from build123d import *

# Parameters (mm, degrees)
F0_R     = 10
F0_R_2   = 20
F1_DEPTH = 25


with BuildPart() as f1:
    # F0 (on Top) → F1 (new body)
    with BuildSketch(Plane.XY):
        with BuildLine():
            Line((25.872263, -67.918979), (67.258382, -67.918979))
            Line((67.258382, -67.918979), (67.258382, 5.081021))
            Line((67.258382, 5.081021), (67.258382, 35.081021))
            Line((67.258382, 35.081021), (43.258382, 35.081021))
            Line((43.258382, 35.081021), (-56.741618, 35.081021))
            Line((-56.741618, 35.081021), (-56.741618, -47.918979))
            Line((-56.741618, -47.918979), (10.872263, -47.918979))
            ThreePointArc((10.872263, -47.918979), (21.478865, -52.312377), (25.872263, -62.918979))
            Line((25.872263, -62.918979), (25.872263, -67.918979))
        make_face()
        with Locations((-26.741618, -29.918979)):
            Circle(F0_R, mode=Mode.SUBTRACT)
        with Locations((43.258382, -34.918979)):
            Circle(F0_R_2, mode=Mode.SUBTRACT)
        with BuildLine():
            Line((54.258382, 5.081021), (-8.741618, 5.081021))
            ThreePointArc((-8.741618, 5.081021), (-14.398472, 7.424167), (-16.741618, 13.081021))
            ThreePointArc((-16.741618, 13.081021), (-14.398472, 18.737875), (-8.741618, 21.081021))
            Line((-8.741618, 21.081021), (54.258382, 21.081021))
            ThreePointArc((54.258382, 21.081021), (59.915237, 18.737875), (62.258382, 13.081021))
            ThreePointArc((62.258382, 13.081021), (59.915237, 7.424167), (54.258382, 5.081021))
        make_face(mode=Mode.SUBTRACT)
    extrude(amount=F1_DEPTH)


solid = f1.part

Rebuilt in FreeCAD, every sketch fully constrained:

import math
import FreeCAD as App
import Part
import Sketcher

V = App.Vector

doc = App.newDocument("Part")
body = doc.addObject("PartDesign::Body", "Body")

# Sketch on XY plane
sketch1 = body.newObject("Sketcher::SketchObject", "Sketch")
sketch1.AttachmentSupport = (doc.getObject("XY_Plane"), [""])
sketch1.MapMode = "FlatFace"
sketch1.addGeometry(Part.LineSegment(V(25.9, -67.9, 0), V(67.3, -67.9, 0)), False)
sketch1.addGeometry(Part.LineSegment(V(67.3, -67.9, 0), V(67.3, 35.1, 0)), False)
sketch1.addGeometry(Part.LineSegment(V(67.3, 35.1, 0), V(-56.7, 35.1, 0)), False)
sketch1.addGeometry(Part.LineSegment(V(-56.7, 35.1, 0), V(-56.7, -47.9, 0)), False)
sketch1.addGeometry(Part.LineSegment(V(-56.7, -47.9, 0), V(10.9, -47.9, 0)), False)
sketch1.addGeometry(Part.ArcOfCircle(Part.Circle(V(10.9, -62.9, 0), V(0, 0, 1), 15), math.radians(0), math.radians(90)), False)
sketch1.addGeometry(Part.LineSegment(V(25.9, -62.9, 0), V(25.9, -67.9, 0)), False)
sketch1.addGeometry(Part.Circle(V(-26.7, -29.9, 0), V(0, 0, 1), 10), False)
sketch1.addGeometry(Part.Circle(V(43.3, -34.9, 0), V(0, 0, 1), 20), False)
sketch1.addGeometry(Part.ArcOfCircle(Part.Circle(V(54.3, 13.1, 0), V(0, 0, 1), 8), math.radians(-90), math.radians(0)), False)
sketch1.addGeometry(Part.LineSegment(V(54.3, 5.1, 0), V(-8.7, 5.1, 0)), False)
sketch1.addGeometry(Part.ArcOfCircle(Part.Circle(V(-8.7, 13.1, 0), V(0, 0, 1), 8), math.radians(-180), math.radians(-90)), False)
sketch1.addGeometry(Part.ArcOfCircle(Part.Circle(V(-8.7, 13.1, 0), V(0, 0, 1), 8), math.radians(90), math.radians(180)), False)
sketch1.addGeometry(Part.LineSegment(V(-8.7, 21.1, 0), V(54.3, 21.1, 0)), False)
sketch1.addGeometry(Part.ArcOfCircle(Part.Circle(V(54.3, 13.1, 0), V(0, 0, 1), 8), math.radians(0), math.radians(90)), False)
sketch1.addConstraint(Sketcher.Constraint("Coincident", 0, 2, 1, 1))
sketch1.addConstraint(Sketcher.Constraint("Coincident", 1, 2, 2, 1))
sketch1.addConstraint(Sketcher.Constraint("Coincident", 2, 2, 3, 1))
sketch1.addConstraint(Sketcher.Constraint("Coincident", 3, 2, 4, 1))
sketch1.addConstraint(Sketcher.Constraint("Tangent", 4, 2, 5, 2))
sketch1.addConstraint(Sketcher.Constraint("Tangent", 5, 1, 6, 1))
sketch1.addConstraint(Sketcher.Constraint("Coincident", 6, 2, 0, 1))
sketch1.addConstraint(Sketcher.Constraint("Tangent", 9, 1, 10, 1))
sketch1.addConstraint(Sketcher.Constraint("Tangent", 10, 2, 11, 2))
sketch1.addConstraint(Sketcher.Constraint("Tangent", 11, 1, 12, 2))
sketch1.addConstraint(Sketcher.Constraint("Tangent", 12, 1, 13, 1))
sketch1.addConstraint(Sketcher.Constraint("Tangent", 13, 2, 14, 2))
sketch1.addConstraint(Sketcher.Constraint("Tangent", 14, 1, 9, 2))
sketch1.addConstraint(Sketcher.Constraint("Horizontal", 0))
sketch1.addConstraint(Sketcher.Constraint("Vertical", 1))
sketch1.addConstraint(Sketcher.Constraint("Horizontal", 2))
sketch1.addConstraint(Sketcher.Constraint("Vertical", 3))
sketch1.addConstraint(Sketcher.Constraint("Horizontal", 4))
sketch1.addConstraint(Sketcher.Constraint("Vertical", 6))
sketch1.addConstraint(Sketcher.Constraint("Horizontal", 10))
sketch1.addConstraint(Sketcher.Constraint("Horizontal", 13))
sketch1.addConstraint(Sketcher.Constraint("Equal", 9, 11))
sketch1.addConstraint(Sketcher.Constraint("Equal", 11, 12))
sketch1.addConstraint(Sketcher.Constraint("Horizontal", 14, 3, 11, 1))
sketch1.addConstraint(Sketcher.Constraint("Horizontal", 11, 1, 14, 1))
sketch1.addConstraint(Sketcher.Constraint("Diameter", 7, 20.0))
sketch1.addConstraint(Sketcher.Constraint("Diameter", 8, 40.0))
sketch1.addConstraint(Sketcher.Constraint("Radius", 5, 14.999999))
sketch1.addConstraint(Sketcher.Constraint("Radius", 9, 7.999999))
sketch1.addConstraint(Sketcher.Constraint("DistanceX", 2, 2, 2, 1, 124.0))
sketch1.addConstraint(Sketcher.Constraint("DistanceX", 10, 2, 10, 1, 63.0))
sketch1.addConstraint(Sketcher.Constraint("DistanceY", 1, 1, 1, 2, 103.0))
sketch1.addConstraint(Sketcher.Constraint("DistanceY", 3, 2, 3, 1, 83.0))
sketch1.addConstraint(Sketcher.Constraint("DistanceY", 5, 3, 7, 3, 32.999999))
sketch1.addConstraint(Sketcher.Constraint("DistanceY", 5, 3, 8, 3, 27.999999))
sketch1.addConstraint(Sketcher.Constraint("DistanceX", 7, 3, 8, 3, 70.0))
sketch1.addConstraint(Sketcher.Constraint("DistanceX", 8, 3, 9, 3, 11.000001))
sketch1.addConstraint(Sketcher.Constraint("DistanceY", 8, 3, 9, 3, 47.999999))
sketch1.addConstraint(Sketcher.Constraint("DistanceX", 8, 3, 0, 2, 24.0))
sketch1.addConstraint(Sketcher.Constraint("DistanceX", 0, 1, 0, 2, 41.386119))
sketch1.addConstraint(Sketcher.Constraint("DistanceY", 5, 3, -1, 1, 62.918978))
sketch1.addConstraint(Sketcher.Constraint("DistanceX", -1, 1, 8, 3, 43.258382))
pad1 = body.newObject("PartDesign::Pad", "Pad")
pad1.Profile = sketch1
pad1.Length = 25

doc.recompute()
